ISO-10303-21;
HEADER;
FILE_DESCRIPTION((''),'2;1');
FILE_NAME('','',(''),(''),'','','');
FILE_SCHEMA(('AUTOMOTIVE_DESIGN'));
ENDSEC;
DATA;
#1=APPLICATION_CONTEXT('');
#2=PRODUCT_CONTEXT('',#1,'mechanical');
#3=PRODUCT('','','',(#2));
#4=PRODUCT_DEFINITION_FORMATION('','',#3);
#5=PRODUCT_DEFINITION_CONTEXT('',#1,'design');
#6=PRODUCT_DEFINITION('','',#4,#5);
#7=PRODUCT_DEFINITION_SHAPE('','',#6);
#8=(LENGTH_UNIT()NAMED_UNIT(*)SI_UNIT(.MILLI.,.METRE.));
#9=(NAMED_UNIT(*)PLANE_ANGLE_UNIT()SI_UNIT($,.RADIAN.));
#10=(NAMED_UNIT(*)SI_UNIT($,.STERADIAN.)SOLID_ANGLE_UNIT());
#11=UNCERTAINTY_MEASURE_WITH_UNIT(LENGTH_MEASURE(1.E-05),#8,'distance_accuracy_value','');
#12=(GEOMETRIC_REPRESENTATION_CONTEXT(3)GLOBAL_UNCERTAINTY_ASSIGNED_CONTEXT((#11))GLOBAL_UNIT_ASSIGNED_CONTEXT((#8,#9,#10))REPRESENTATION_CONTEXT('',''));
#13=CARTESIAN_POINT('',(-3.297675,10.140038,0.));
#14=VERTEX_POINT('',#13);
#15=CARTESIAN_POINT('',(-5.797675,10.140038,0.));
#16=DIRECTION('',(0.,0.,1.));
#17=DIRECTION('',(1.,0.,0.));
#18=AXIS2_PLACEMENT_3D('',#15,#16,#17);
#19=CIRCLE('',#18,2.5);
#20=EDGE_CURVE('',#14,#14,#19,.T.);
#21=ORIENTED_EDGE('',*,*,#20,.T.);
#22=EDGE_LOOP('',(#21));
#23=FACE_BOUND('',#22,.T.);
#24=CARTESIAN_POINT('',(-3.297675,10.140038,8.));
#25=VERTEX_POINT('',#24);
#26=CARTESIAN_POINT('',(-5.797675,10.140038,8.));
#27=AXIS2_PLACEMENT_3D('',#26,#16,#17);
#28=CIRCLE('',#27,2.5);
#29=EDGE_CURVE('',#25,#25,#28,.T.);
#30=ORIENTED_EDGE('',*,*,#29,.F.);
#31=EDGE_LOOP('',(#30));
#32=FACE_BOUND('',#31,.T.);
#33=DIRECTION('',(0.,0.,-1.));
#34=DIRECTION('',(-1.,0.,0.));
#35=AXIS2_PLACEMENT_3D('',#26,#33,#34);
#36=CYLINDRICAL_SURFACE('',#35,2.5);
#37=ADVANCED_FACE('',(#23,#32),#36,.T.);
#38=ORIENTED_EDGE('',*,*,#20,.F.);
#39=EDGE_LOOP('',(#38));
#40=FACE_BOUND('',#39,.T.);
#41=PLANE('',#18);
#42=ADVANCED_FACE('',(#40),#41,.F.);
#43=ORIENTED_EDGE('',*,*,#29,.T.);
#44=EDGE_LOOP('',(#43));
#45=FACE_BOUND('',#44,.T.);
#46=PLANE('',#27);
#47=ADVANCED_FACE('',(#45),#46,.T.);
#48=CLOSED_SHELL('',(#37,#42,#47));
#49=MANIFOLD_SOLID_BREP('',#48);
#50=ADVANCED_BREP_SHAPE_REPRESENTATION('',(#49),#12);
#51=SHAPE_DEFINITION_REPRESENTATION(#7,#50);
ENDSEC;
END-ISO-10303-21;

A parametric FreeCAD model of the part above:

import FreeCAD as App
import Part
import Sketcher
from FreeCAD import Vector

doc = App.newDocument("Part")
params = doc.addObject("Spreadsheet::Sheet", "Params")
for row, (alias, value) in enumerate([
    ("sketch1_diameter", "5 mm"),
    ("pad1_length", "8 mm"),
], start=1):
    params.set(f"A{row}", alias)
    params.set(f"B{row}", "=" + value)
    params.setAlias(f"B{row}", alias)

body = doc.addObject("PartDesign::Body", "Body")

sketch1 = body.newObject("Sketcher::SketchObject", "Sketch")
sketch1.AttachmentSupport = (doc.getObject("XY_Plane"), [""])
sketch1.MapMode = "FlatFace"
sketch1.addGeometry(Part.Circle(Vector(-5.797675, 10.140038, 0), Vector(0, 0, 1), 2.5), False)
sketch1.addConstraint([
    Sketcher.Constraint("Diameter", 0, 5.0),
    Sketcher.Constraint("DistanceY", -1, 1, 0, 3, 10.140038),
    Sketcher.Constraint("DistanceX", 0, 3, -1, 1, 5.797675),
])
sketch1.setExpression("Constraints[0]", "Params.sketch1_diameter")
pad1 = body.newObject("PartDesign::Pad", "Pad")
pad1.Profile = sketch1
pad1.setExpression("Length", "Params.pad1_length")

doc.recompute()
